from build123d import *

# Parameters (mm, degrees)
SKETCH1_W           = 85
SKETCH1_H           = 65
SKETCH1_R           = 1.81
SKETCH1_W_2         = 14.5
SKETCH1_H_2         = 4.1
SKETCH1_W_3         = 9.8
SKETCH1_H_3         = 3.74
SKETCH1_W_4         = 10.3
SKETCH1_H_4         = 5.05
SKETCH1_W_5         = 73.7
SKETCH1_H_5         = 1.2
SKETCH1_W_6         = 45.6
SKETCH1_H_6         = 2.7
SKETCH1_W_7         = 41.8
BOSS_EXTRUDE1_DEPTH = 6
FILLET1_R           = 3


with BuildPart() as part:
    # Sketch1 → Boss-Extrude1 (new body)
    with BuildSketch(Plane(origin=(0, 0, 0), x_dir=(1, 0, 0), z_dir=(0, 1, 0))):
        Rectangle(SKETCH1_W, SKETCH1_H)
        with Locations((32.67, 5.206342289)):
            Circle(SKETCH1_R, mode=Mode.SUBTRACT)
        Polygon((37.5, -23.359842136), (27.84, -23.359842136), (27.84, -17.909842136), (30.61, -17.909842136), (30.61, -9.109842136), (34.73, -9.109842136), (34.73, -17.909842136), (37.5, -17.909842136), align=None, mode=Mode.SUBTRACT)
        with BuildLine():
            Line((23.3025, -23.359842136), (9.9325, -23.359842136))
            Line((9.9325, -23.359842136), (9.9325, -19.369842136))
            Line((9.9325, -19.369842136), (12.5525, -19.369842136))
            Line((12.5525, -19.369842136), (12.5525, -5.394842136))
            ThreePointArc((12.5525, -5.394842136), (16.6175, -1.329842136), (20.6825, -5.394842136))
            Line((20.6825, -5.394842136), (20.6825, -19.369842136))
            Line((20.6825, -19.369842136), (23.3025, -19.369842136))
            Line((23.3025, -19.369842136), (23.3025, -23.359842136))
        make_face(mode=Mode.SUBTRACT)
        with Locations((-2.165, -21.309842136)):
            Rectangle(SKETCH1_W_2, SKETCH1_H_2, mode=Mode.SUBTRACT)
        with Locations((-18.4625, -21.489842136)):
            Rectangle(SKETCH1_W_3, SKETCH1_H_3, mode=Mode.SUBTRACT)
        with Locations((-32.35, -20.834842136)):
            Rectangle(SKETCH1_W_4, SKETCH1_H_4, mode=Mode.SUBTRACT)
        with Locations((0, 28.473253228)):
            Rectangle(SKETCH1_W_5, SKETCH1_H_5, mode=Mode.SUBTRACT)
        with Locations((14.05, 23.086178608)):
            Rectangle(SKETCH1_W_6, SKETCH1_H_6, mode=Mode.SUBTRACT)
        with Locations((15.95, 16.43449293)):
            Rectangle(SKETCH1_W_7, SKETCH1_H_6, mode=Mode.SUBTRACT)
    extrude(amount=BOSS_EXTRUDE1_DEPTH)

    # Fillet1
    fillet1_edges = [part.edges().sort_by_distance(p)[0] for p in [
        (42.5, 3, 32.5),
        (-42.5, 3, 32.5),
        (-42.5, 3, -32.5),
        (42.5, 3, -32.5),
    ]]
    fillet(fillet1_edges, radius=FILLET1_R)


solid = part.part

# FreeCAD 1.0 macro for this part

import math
import FreeCAD as App
import Part
import Sketcher
Q = App.Units.Quantity


def edges_at(feature, points):
    """Names of the edges that pass closest to the given points."""
    edges = feature.Shape.Edges
    near = lambda p: min(range(len(edges)), key=lambda i: edges[i].distToShape(Part.Vertex(*p))[0])
    return sorted({f"Edge{near(p) + 1}" for p in points})

doc = App.newDocument("Part")
body = doc.addObject("PartDesign::Body", "Body")

# Sketch on XZ plane
sketch1 = body.newObject("Sketcher::SketchObject", "Sketch")
sketch1.AttachmentSupport = (doc.getObject("XZ_Plane"), [""])
sketch1.MapMode = "FlatFace"
sketch1.addGeometry(Part.LineSegment(App.Vector(-42.5, -32.5, 0), App.Vector(-42.5, 32.5, 0)), False)
sketch1.addGeometry(Part.LineSegment(App.Vector(-42.5, 32.5, 0), App.Vector(42.5, 32.5, 0)), False)
sketch1.addGeometry(Part.LineSegment(App.Vector(42.5, 32.5, 0), App.Vector(42.5, -32.5, 0)), False)
sketch1.addGeometry(Part.LineSegment(App.Vector(42.5, -32.5, 0), App.Vector(-42.5, -32.5, 0)), False)
sketch1.addGeometry(Part.LineSegment(App.Vector(-27.2, 23.4, 0), App.Vector(-37.5, 23.4, 0)), False)
sketch1.addGeometry(Part.LineSegment(App.Vector(-37.5, 23.4, 0), App.Vector(-37.5, 18.3, 0)), False)
sketch1.addGeometry(Part.LineSegment(App.Vector(-37.5, 18.3, 0), App.Vector(-27.2, 18.3, 0)), False)
sketch1.addGeometry(Part.LineSegment(App.Vector(-27.2, 18.3, 0), App.Vector(-27.2, 23.4, 0)), False)
sketch1.addGeometry(Part.LineSegment(App.Vector(-13.6, 23.4, 0), App.Vector(-23.4, 23.4, 0)), False)
sketch1.addGeometry(Part.LineSegment(App.Vector(-23.4, 23.4, 0), App.Vector(-23.4, 19.6, 0)), False)
sketch1.addGeometry(Part.LineSegment(App.Vector(-23.4, 19.6, 0), App.Vector(-13.6, 19.6, 0)), False)
sketch1.addGeometry(Part.LineSegment(App.Vector(-13.6, 19.6, 0), App.Vector(-13.6, 23.4, 0)), False)
sketch1.addGeometry(Part.LineSegment(App.Vector(5.1, 23.4, 0), App.Vector(-9.4, 23.4, 0)), False)
sketch1.addGeometry(Part.LineSegment(App.Vector(-9.4, 23.4, 0), App.Vector(-9.4, 19.3, 0)), False)
sketch1.addGeometry(Part.LineSegment(App.Vector(-9.4, 19.3, 0), App.Vector(5.1, 19.3, 0)), False)
sketch1.addGeometry(Part.LineSegment(App.Vector(5.1, 19.3, 0), App.Vector(5.1, 23.4, 0)), False)
sketch1.addGeometry(Part.LineSegment(App.Vector(23.3, 19.4, 0), App.Vector(23.3, 23.4, 0)), False)
sketch1.addGeometry(Part.LineSegment(App.Vector(23.3, 23.4, 0), App.Vector(9.9, 23.4, 0)), False)
sketch1.addGeometry(Part.LineSegment(App.Vector(9.9, 23.4, 0), App.Vector(9.9, 19.4, 0)), False)
sketch1.addGeometry(Part.LineSegment(App.Vector(9.9, 19.4, 0), App.Vector(12.6, 19.4, 0)), False)
sketch1.addGeometry(Part.LineSegment(App.Vector(12.6, 19.4, 0), App.Vector(12.6, 5.4, 0)), False)
sketch1.addGeometry(Part.ArcOfCircle(Part.Circle(App.Vector(16.6, 5.4, 0), App.Vector(0, 0, 1), 4.1), math.radians(180), math.radians(360)), False)
sketch1.addGeometry(Part.LineSegment(App.Vector(20.7, 5.4, 0), App.Vector(20.7, 19.4, 0)), False)
sketch1.addGeometry(Part.LineSegment(App.Vector(20.7, 19.4, 0), App.Vector(23.3, 19.4, 0)), False)
sketch1.addGeometry(Part.LineSegment(App.Vector(37.5, 17.9, 0), App.Vector(37.5, 23.4, 0)), False)
sketch1.addGeometry(Part.LineSegment(App.Vector(37.5, 23.4, 0), App.Vector(27.8, 23.4, 0)), False)
sketch1.addGeometry(Part.LineSegment(App.Vector(27.8, 23.4, 0), App.Vector(27.8, 17.9, 0)), False)
sketch1.addGeometry(Part.LineSegment(App.Vector(27.8, 17.9, 0), App.Vector(30.6, 17.9, 0)), False)
sketch1.addGeometry(Part.LineSegment(App.Vector(30.6, 17.9, 0), App.Vector(30.6, 9.1, 0)), False)
sketch1.addGeometry(Part.LineSegment(App.Vector(30.6, 9.1, 0), App.Vector(34.7, 9.1, 0)), False)
sketch1.addGeometry(Part.LineSegment(App.Vector(34.7, 9.1, 0), App.Vector(34.7, 17.9, 0)), False)
sketch1.addGeometry(Part.LineSegment(App.Vector(34.7, 17.9, 0), App.Vector(37.5, 17.9, 0)), False)
sketch1.addGeometry(Part.Circle(App.Vector(32.7, -5.2, 0), App.Vector(0, 0, 1), 1.8), False)
sketch1.addGeometry(Part.LineSegment(App.Vector(36.9, -15.1, 0), App.Vector(-5, -15.1, 0)), False)
sketch1.addGeometry(Part.LineSegment(App.Vector(-5, -15.1, 0), App.Vector(-5, -17.8, 0)), False)
sketch1.addGeometry(Part.LineSegment(App.Vector(-5, -17.8, 0), App.Vector(36.9, -17.8, 0)), False)
sketch1.addGeometry(Part.LineSegment(App.Vector(36.9, -17.8, 0), App.Vector(36.9, -15.1, 0)), False)
sketch1.addGeometry(Part.LineSegment(App.Vector(36.9, -27.9, 0), App.Vector(-36.9, -27.9, 0)), False)
sketch1.addGeometry(Part.LineSegment(App.Vector(-36.9, -27.9, 0), App.Vector(-36.9, -29.1, 0)), False)
sketch1.addGeometry(Part.LineSegment(App.Vector(-36.9, -29.1, 0), App.Vector(36.9, -29.1, 0)), False)
sketch1.addGeometry(Part.LineSegment(App.Vector(36.9, -29.1, 0), App.Vector(36.9, -27.9, 0)), False)
sketch1.addGeometry(Part.LineSegment(App.Vector(36.9, -21.7, 0), App.Vector(-8.8, -21.7, 0)), False)
sketch1.addGeometry(Part.LineSegment(App.Vector(-8.8, -21.7, 0), App.Vector(-8.8, -24.4, 0)), False)
sketch1.addGeometry(Part.LineSegment(App.Vector(-8.8, -24.4, 0), App.Vector(36.9, -24.4, 0)), False)
sketch1.addGeometry(Part.LineSegment(App.Vector(36.9, -24.4, 0), App.Vector(36.9, -21.7, 0)), False)
sketch1.addConstraint(Sketcher.Constraint("Coincident", 0, 2, 1, 1))
sketch1.addConstraint(Sketcher.Constraint("Coincident", 1, 2, 2, 1))
sketch1.addConstraint(Sketcher.Constraint("Coincident", 2, 2, 3, 1))
sketch1.addConstraint(Sketcher.Constraint("Coincident", 3, 2, 0, 1))
sketch1.addConstraint(Sketcher.Constraint("Coincident", 4, 2, 5, 1))
sketch1.addConstraint(Sketcher.Constraint("Coincident", 5, 2, 6, 1))
sketch1.addConstraint(Sketcher.Constraint("Coincident", 6, 2, 7, 1))
sketch1.addConstraint(Sketcher.Constraint("Coincident", 7, 2, 4, 1))
sketch1.addConstraint(Sketcher.Constraint("Coincident", 8, 2, 9, 1))
sketch1.addConstraint(Sketcher.Constraint("Coincident", 9, 2, 10, 1))
sketch1.addConstraint(Sketcher.Constraint("Coincident", 10, 2, 11, 1))
sketch1.addConstraint(Sketcher.Constraint("Coincident", 11, 2, 8, 1))
sketch1.addConstraint(Sketcher.Constraint("Coincident", 12, 2, 13, 1))
sketch1.addConstraint(Sketcher.Constraint("Coincident", 13, 2, 14, 1))
sketch1.addConstraint(Sketcher.Constraint("Coincident", 14, 2, 15, 1))
sketch1.addConstraint(Sketcher.Constraint("Coincident", 15, 2, 12, 1))
sketch1.addConstraint(Sketcher.Constraint("Coincident", 16, 2, 17, 1))
sketch1.addConstraint(Sketcher.Constraint("Coincident", 17, 2, 18, 1))
sketch1.addConstraint(Sketcher.Constraint("Coincident", 18, 2, 19, 1))
sketch1.addConstraint(Sketcher.Constraint("Coincident", 19, 2, 20, 1))
sketch1.addConstraint(Sketcher.Constraint("Tangent", 20, 2, 21, 1))
sketch1.addConstraint(Sketcher.Constraint("Tangent", 21, 2, 22, 1))
sketch1.addConstraint(Sketcher.Constraint("Coincident", 22, 2, 23, 1))
sketch1.addConstraint(Sketcher.Constraint("Coincident", 23, 2, 16, 1))
sketch1.addConstraint(Sketcher.Constraint("Coincident", 24, 2, 25, 1))
sketch1.addConstraint(Sketcher.Constraint("Coincident", 25, 2, 26, 1))
sketch1.addConstraint(Sketcher.Constraint("Coincident", 26, 2, 27, 1))
sketch1.addConstraint(Sketcher.Constraint("Coincident", 27, 2, 28, 1))
sketch1.addConstraint(Sketcher.Constraint("Coincident", 28, 2, 29, 1))
sketch1.addConstraint(Sketcher.Constraint("Coincident", 29, 2, 30, 1))
sketch1.addConstraint(Sketcher.Constraint("Coincident", 30, 2, 31, 1))
sketch1.addConstraint(Sketcher.Constraint("Coincident", 31, 2, 24, 1))
sketch1.addConstraint(Sketcher.Constraint("Coincident", 33, 2, 34, 1))
sketch1.addConstraint(Sketcher.Constraint("Coincident", 34, 2, 35, 1))
sketch1.addConstraint(Sketcher.Constraint("Coincident", 35, 2, 36, 1))
sketch1.addConstraint(Sketcher.Constraint("Coincident", 36, 2, 33, 1))
sketch1.addConstraint(Sketcher.Constraint("Coincident", 37, 2, 38, 1))
sketch1.addConstraint(Sketcher.Constraint("Coincident", 38, 2, 39, 1))
sketch1.addConstraint(Sketcher.Constraint("Coincident", 39, 2, 40, 1))
sketch1.addConstraint(Sketcher.Constraint("Coincident", 40, 2, 37, 1))
sketch1.addConstraint(Sketcher.Constraint("Coincident", 41, 2, 42, 1))
sketch1.addConstraint(Sketcher.Constraint("Coincident", 42, 2, 43, 1))
sketch1.addConstraint(Sketcher.Constraint("Coincident", 43, 2, 44, 1))
sketch1.addConstraint(Sketcher.Constraint("Coincident", 44, 2, 41, 1))
sketch1.addConstraint(Sketcher.Constraint("Vertical", 0))
sketch1.addConstraint(Sketcher.Constraint("Horizontal", 1))
sketch1.addConstraint(Sketcher.Constraint("Vertical", 2))
sketch1.addConstraint(Sketcher.Constraint("Horizontal", 3))
sketch1.addConstraint(Sketcher.Constraint("Horizontal", 4))
sketch1.addConstraint(Sketcher.Constraint("Vertical", 5))
sketch1.addConstraint(Sketcher.Constraint("Horizontal", 6))
sketch1.addConstraint(Sketcher.Constraint("Vertical", 7))
sketch1.addConstraint(Sketcher.Constraint("Horizontal", 8))
sketch1.addConstraint(Sketcher.Constraint("Vertical", 9))
sketch1.addConstraint(Sketcher.Constraint("Horizontal", 10))
sketch1.addConstraint(Sketcher.Constraint("Vertical", 11))
sketch1.addConstraint(Sketcher.Constraint("Horizontal", 12))
sketch1.addConstraint(Sketcher.Constraint("Vertical", 13))
sketch1.addConstraint(Sketcher.Constraint("Horizontal", 14))
sketch1.addConstraint(Sketcher.Constraint("Vertical", 15))
sketch1.addConstraint(Sketcher.Constraint("Vertical", 16))
sketch1.addConstraint(Sketcher.Constraint("Horizontal", 17))
sketch1.addConstraint(Sketcher.Constraint("Vertical", 18))
sketch1.addConstraint(Sketcher.Constraint("Horizontal", 19))
sketch1.addConstraint(Sketcher.Constraint("Vertical", 20))
sketch1.addConstraint(Sketcher.Constraint("Vertical", 22))
sketch1.addConstraint(Sketcher.Constraint("Horizontal", 23))
sketch1.addConstraint(Sketcher.Constraint("Vertical", 24))
sketch1.addConstraint(Sketcher.Constraint("Horizontal", 25))
sketch1.addConstraint(Sketcher.Constraint("Vertical", 26))
sketch1.addConstraint(Sketcher.Constraint("Horizontal", 27))
sketch1.addConstraint(Sketcher.Constraint("Vertical", 28))
sketch1.addConstraint(Sketcher.Constraint("Horizontal", 29))
sketch1.addConstraint(Sketcher.Constraint("Vertical", 30))
sketch1.addConstraint(Sketcher.Constraint("Horizontal", 31))
sketch1.addConstraint(Sketcher.Constraint("Horizontal", 33))
sketch1.addConstraint(Sketcher.Constraint("Vertical", 34))
sketch1.addConstraint(Sketcher.Constraint("Horizontal", 35))
sketch1.addConstraint(Sketcher.Constraint("Vertical", 36))
sketch1.addConstraint(Sketcher.Constraint("Horizontal", 37))
sketch1.addConstraint(Sketcher.Constraint("Vertical", 38))
sketch1.addConstraint(Sketcher.Constraint("Horizontal", 39))
sketch1.addConstraint(Sketcher.Constraint("Vertical", 40))
sketch1.addConstraint(Sketcher.Constraint("Horizontal", 41))
sketch1.addConstraint(Sketcher.Constraint("Vertical", 42))
sketch1.addConstraint(Sketcher.Constraint("Horizontal", 43))
sketch1.addConstraint(Sketcher.Constraint("Vertical", 44))
sketch1.addConstraint(Sketcher.Constraint("Symmetric", 0, 2, 2, 2, -1, 1))
sketch1.addConstraint(Sketcher.Constraint("Symmetric", 4, 2, 24, 2, -2))
sketch1.addConstraint(Sketcher.Constraint("Horizontal", 7, 2, 8, 2))
sketch1.addConstraint(Sketcher.Constraint("Horizontal", 11, 2, 12, 2))
sketch1.addConstraint(Sketcher.Constraint("Horizontal", 15, 2, 16, 2))
sketch1.addConstraint(Sketcher.Constraint("Horizontal", 19, 2, 22, 2))
sketch1.addConstraint(Sketcher.Constraint("Horizontal", 27, 2, 30, 2))
sketch1.addConstraint(Sketcher.Constraint("Vertical", 36, 2, 39, 2))
sketch1.addConstraint(Sketcher.Constraint("Vertical", 40, 2, 43, 2))
sketch1.addConstraint(Sketcher.Constraint("Equal", 19, 23))
sketch1.addConstraint(Sketcher.Constraint("Equal", 27, 31))
sketch1.addConstraint(Sketcher.Constraint("Equal", 36, 42))
sketch1.addConstraint(Sketcher.Constraint("Diameter", 32, Q("3.62 mm")))
sketch1.addConstraint(Sketcher.Constraint("DistanceX", 1, 1, 1, 2, Q("85 mm")))
sketch1.addConstraint(Sketcher.Constraint("DistanceY", 0, 1, 0, 2, Q("65 mm")))
sketch1.addConstraint(Sketcher.Constraint("DistanceX", 4, 2, 4, 1, Q("10.3 mm")))
sketch1.addConstraint(Sketcher.Constraint("DistanceX", 8, 2, 8, 1, Q("9.8 mm")))
sketch1.addConstraint(Sketcher.Constraint("DistanceX", 12, 2, 12, 1, Q("14.5 mm")))
sketch1.addConstraint(Sketcher.Constraint("DistanceX", 33, 2, 33, 1, Q("41.8 mm")))
sketch1.addConstraint(Sketcher.Constraint("DistanceX", 37, 2, 37, 1, Q("73.7 mm")))
sketch1.addConstraint(Sketcher.Constraint("DistanceX", 41, 2, 41, 1, Q("45.6 mm")))
sketch1.addConstraint(Sketcher.Constraint("DistanceY", 13, 2, 13, 1, Q("4.1 mm")))
sketch1.addConstraint(Sketcher.Constraint("DistanceY", 28, 2, 28, 1, Q("8.8 mm")))
sketch1.addConstraint(Sketcher.Constraint("DistanceY", 34, 2, 34, 1, Q("2.7 mm")))
sketch1.addConstraint(Sketcher.Constraint("DistanceY", 38, 2, 38, 1, Q("1.2 mm")))
sketch1.addConstraint(Sketcher.Constraint("Radius", 21, Q("4.065 mm")))
sketch1.addConstraint(Sketcher.Constraint("DistanceX", 0, 2, 4, 2, Q("5 mm")))
sketch1.addConstraint(Sketcher.Constraint("DistanceX", 17, 2, 17, 1, Q("13.37 mm")))
sketch1.addConstraint(Sketcher.Constraint("DistanceX", 25, 2, 25, 1, Q("9.66 mm")))
sketch1.addConstraint(Sketcher.Constraint("DistanceX", 27, 1, 27, 2, Q("2.77 mm")))
sketch1.addConstraint(Sketcher.Constraint("DistanceY", 5, 2, 5, 1, Q("5.05 mm")))
sketch1.addConstraint(Sketcher.Constraint("DistanceY", 9, 2, 9, 1, Q("3.74 mm")))
sketch1.addConstraint(Sketcher.Constraint("DistanceY", 16, 1, 16, 2, Q("3.99 mm")))
sketch1.addConstraint(Sketcher.Constraint("DistanceY", 24, 1, 24, 2, Q("5.45 mm")))
sketch1.addConstraint(Sketcher.Constraint("DistanceY", 20, 2, 20, 1, Q("13.975 mm")))
sketch1.addConstraint(Sketcher.Constraint("DistanceX", -1, 1, 32, 3, Q("32.67 mm")))
sketch1.addConstraint(Sketcher.Constraint("DistanceX", 33, 2, -1, 1, Q("4.95 mm")))
sketch1.addConstraint(Sketcher.Constraint("DistanceX", 12, 2, -1, 1, Q("9.415 mm")))
sketch1.addConstraint(Sketcher.Constraint("DistanceX", -1, 1, 21, 3, Q("16.6175 mm")))
sketch1.addConstraint(Sketcher.Constraint("DistanceX", 8, 2, -1, 1, Q("23.3625 mm")))
sketch1.addConstraint(Sketcher.Constraint("DistanceY", 41, 2, -1, 1, Q("21.736179 mm")))
sketch1.addConstraint(Sketcher.Constraint("DistanceY", 35, 2, 32, 3, Q("12.578151 mm")))
sketch1.addConstraint(Sketcher.Constraint("DistanceY", 37, 2, 34, 2, Q("10.08876 mm")))
sketch1.addConstraint(Sketcher.Constraint("DistanceY", 41, 2, 20, 2, Q("27.131021 mm")))
sketch1.addConstraint(Sketcher.Constraint("DistanceY", 32, 3, -1, 1, Q("5.206342 mm")))
pad1 = body.newObject("PartDesign::Pad", "Pad")
pad1.Profile = sketch1
pad1.Length = 6
pad1.Reversed = True
doc.recompute()

fillet = body.newObject("PartDesign::Fillet", "Fillet")
fillet.Base = (pad1, edges_at(pad1, [
    (42.5, 3, 32.5),
    (-42.5, 3, 32.5),
    (-42.5, 3, -32.5),
    (42.5, 3, -32.5),
]))
fillet.Radius = 3

doc.recompute()
